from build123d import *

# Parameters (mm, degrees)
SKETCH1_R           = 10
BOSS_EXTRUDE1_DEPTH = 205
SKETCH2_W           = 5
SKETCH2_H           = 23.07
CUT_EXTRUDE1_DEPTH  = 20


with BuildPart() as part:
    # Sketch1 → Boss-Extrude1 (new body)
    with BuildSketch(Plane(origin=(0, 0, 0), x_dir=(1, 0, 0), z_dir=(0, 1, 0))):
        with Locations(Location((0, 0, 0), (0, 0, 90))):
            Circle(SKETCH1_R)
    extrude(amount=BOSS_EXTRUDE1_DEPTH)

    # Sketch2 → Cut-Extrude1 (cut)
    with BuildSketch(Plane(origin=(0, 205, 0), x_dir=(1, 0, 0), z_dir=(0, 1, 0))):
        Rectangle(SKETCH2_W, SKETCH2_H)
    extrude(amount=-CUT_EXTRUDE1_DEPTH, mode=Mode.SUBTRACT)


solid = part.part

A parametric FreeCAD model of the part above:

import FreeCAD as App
import Part
import Sketcher

V = App.Vector


def add_polygon(sketch, points):
    """Adds a closed chain of lines whose ends are joined by coincident constraints."""
    first, n = sketch.GeometryCount, len(points)
    for a, b in zip(points, points[1:] + points[:1]):
        sketch.addGeometry(Part.LineSegment(App.Vector(*a, 0), App.Vector(*b, 0)), False)
    for i in range(n):
        sketch.addConstraint(Sketcher.Constraint("Coincident", first + i, 2, first + (i + 1) % n, 1))

doc = App.newDocument("Part")
body = doc.addObject("PartDesign::Body", "Body")

# Sketch on XZ plane
sketch1 = body.newObject("Sketcher::SketchObject", "Sketch")
sketch1.AttachmentSupport = (doc.getObject("XZ_Plane"), [""])
sketch1.MapMode = "FlatFace"
sketch1.addGeometry(Part.Circle(V(0, 0, 0), V(0, 0, 1), 10), False)
sketch1.addConstraint([
    Sketcher.Constraint("Coincident", 0, 3, -1, 1),
    Sketcher.Constraint("Diameter", 0, 20.0),
])
pad1 = body.newObject("PartDesign::Pad", "Pad")
pad1.Profile = sketch1
pad1.Length = 205
pad1.Reversed = True

# Sketch on XZ plane
sketch2 = body.newObject("Sketcher::SketchObject", "Sketch001")
sketch2.AttachmentSupport = (doc.getObject("XZ_Plane"), [""])
sketch2.MapMode = "FlatFace"
sketch2.AttachmentOffset = App.Placement(V(0, 0, -205), App.Rotation())
add_polygon(sketch2, [(-2, -12), (-2, 12), (2, 12), (2, -12)])  # lines 0-3
sketch2.addConstraint([
    Sketcher.Constraint("Vertical", 0),
    Sketcher.Constraint("Horizontal", 1),
    Sketcher.Constraint("Vertical", 2),
    Sketcher.Constraint("Horizontal", 3),
    Sketcher.Constraint("Symmetric", 0, 2, 2, 2, -1, 1),
    Sketcher.Constraint("DistanceX", 1, 1, 1, 2, 5.0),
    Sketcher.Constraint("DistanceY", 0, 1, 0, 2, 23.07),
])
pocket1 = body.newObject("PartDesign::Pocket", "Pocket")
pocket1.Profile = sketch2
pocket1.Length = 20
pocket1.Reversed = True

doc.recompute()
